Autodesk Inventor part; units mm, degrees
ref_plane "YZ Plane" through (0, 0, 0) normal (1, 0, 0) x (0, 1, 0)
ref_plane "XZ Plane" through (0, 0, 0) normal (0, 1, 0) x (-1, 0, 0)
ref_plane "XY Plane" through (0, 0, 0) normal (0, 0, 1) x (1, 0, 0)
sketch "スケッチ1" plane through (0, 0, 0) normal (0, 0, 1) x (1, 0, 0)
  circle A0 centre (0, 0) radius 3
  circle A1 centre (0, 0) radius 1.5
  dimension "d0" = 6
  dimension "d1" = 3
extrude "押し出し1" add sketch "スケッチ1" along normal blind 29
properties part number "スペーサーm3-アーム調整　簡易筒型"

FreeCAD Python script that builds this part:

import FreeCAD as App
import Part
import Sketcher
from FreeCAD import Vector

doc = App.newDocument("Part")
params = doc.addObject("Spreadsheet::Sheet", "Params")
for row, (alias, value) in enumerate([
    ("sketch1_diameter", "6 mm"),
    ("sketch1_diameter2", "3 mm"),
    ("pad1_length", "29 mm"),
], start=1):
    params.set(f"A{row}", alias)
    params.set(f"B{row}", "=" + value)
    params.setAlias(f"B{row}", alias)

body = doc.addObject("PartDesign::Body", "Body")

# Sketch on XY plane
sketch1 = doc.addObject("Sketcher::SketchObject", "Sketch")
body.addObject(sketch1)
sketch1.AttachmentSupport = (doc.XY_Plane, [""])
sketch1.MapMode = "FlatFace"
sketch1.addGeometry([
    Part.Circle(Vector(0, 0, 0), Vector(0, 0, 1), 3),
    Part.Circle(Vector(0, 0, 0), Vector(0, 0, 1), 1.5),
], False)
sketch1.addConstraint([
    Sketcher.Constraint("Coincident", 0, 3, -1, 1),
    Sketcher.Constraint("Coincident", 1, 3, -1, 1),
    Sketcher.Constraint("Diameter", 0, 6.0),
    Sketcher.Constraint("Diameter", 1, 3.0),
])
sketch1.setExpression("Constraints[2]", "Params.sketch1_diameter")
sketch1.setExpression("Constraints[3]", "Params.sketch1_diameter2")
pad1 = doc.addObject("PartDesign::Pad", "Pad")
body.addObject(pad1)
pad1.Profile = sketch1
pad1.setExpression("Length", "Params.pad1_length")

doc.recompute()
